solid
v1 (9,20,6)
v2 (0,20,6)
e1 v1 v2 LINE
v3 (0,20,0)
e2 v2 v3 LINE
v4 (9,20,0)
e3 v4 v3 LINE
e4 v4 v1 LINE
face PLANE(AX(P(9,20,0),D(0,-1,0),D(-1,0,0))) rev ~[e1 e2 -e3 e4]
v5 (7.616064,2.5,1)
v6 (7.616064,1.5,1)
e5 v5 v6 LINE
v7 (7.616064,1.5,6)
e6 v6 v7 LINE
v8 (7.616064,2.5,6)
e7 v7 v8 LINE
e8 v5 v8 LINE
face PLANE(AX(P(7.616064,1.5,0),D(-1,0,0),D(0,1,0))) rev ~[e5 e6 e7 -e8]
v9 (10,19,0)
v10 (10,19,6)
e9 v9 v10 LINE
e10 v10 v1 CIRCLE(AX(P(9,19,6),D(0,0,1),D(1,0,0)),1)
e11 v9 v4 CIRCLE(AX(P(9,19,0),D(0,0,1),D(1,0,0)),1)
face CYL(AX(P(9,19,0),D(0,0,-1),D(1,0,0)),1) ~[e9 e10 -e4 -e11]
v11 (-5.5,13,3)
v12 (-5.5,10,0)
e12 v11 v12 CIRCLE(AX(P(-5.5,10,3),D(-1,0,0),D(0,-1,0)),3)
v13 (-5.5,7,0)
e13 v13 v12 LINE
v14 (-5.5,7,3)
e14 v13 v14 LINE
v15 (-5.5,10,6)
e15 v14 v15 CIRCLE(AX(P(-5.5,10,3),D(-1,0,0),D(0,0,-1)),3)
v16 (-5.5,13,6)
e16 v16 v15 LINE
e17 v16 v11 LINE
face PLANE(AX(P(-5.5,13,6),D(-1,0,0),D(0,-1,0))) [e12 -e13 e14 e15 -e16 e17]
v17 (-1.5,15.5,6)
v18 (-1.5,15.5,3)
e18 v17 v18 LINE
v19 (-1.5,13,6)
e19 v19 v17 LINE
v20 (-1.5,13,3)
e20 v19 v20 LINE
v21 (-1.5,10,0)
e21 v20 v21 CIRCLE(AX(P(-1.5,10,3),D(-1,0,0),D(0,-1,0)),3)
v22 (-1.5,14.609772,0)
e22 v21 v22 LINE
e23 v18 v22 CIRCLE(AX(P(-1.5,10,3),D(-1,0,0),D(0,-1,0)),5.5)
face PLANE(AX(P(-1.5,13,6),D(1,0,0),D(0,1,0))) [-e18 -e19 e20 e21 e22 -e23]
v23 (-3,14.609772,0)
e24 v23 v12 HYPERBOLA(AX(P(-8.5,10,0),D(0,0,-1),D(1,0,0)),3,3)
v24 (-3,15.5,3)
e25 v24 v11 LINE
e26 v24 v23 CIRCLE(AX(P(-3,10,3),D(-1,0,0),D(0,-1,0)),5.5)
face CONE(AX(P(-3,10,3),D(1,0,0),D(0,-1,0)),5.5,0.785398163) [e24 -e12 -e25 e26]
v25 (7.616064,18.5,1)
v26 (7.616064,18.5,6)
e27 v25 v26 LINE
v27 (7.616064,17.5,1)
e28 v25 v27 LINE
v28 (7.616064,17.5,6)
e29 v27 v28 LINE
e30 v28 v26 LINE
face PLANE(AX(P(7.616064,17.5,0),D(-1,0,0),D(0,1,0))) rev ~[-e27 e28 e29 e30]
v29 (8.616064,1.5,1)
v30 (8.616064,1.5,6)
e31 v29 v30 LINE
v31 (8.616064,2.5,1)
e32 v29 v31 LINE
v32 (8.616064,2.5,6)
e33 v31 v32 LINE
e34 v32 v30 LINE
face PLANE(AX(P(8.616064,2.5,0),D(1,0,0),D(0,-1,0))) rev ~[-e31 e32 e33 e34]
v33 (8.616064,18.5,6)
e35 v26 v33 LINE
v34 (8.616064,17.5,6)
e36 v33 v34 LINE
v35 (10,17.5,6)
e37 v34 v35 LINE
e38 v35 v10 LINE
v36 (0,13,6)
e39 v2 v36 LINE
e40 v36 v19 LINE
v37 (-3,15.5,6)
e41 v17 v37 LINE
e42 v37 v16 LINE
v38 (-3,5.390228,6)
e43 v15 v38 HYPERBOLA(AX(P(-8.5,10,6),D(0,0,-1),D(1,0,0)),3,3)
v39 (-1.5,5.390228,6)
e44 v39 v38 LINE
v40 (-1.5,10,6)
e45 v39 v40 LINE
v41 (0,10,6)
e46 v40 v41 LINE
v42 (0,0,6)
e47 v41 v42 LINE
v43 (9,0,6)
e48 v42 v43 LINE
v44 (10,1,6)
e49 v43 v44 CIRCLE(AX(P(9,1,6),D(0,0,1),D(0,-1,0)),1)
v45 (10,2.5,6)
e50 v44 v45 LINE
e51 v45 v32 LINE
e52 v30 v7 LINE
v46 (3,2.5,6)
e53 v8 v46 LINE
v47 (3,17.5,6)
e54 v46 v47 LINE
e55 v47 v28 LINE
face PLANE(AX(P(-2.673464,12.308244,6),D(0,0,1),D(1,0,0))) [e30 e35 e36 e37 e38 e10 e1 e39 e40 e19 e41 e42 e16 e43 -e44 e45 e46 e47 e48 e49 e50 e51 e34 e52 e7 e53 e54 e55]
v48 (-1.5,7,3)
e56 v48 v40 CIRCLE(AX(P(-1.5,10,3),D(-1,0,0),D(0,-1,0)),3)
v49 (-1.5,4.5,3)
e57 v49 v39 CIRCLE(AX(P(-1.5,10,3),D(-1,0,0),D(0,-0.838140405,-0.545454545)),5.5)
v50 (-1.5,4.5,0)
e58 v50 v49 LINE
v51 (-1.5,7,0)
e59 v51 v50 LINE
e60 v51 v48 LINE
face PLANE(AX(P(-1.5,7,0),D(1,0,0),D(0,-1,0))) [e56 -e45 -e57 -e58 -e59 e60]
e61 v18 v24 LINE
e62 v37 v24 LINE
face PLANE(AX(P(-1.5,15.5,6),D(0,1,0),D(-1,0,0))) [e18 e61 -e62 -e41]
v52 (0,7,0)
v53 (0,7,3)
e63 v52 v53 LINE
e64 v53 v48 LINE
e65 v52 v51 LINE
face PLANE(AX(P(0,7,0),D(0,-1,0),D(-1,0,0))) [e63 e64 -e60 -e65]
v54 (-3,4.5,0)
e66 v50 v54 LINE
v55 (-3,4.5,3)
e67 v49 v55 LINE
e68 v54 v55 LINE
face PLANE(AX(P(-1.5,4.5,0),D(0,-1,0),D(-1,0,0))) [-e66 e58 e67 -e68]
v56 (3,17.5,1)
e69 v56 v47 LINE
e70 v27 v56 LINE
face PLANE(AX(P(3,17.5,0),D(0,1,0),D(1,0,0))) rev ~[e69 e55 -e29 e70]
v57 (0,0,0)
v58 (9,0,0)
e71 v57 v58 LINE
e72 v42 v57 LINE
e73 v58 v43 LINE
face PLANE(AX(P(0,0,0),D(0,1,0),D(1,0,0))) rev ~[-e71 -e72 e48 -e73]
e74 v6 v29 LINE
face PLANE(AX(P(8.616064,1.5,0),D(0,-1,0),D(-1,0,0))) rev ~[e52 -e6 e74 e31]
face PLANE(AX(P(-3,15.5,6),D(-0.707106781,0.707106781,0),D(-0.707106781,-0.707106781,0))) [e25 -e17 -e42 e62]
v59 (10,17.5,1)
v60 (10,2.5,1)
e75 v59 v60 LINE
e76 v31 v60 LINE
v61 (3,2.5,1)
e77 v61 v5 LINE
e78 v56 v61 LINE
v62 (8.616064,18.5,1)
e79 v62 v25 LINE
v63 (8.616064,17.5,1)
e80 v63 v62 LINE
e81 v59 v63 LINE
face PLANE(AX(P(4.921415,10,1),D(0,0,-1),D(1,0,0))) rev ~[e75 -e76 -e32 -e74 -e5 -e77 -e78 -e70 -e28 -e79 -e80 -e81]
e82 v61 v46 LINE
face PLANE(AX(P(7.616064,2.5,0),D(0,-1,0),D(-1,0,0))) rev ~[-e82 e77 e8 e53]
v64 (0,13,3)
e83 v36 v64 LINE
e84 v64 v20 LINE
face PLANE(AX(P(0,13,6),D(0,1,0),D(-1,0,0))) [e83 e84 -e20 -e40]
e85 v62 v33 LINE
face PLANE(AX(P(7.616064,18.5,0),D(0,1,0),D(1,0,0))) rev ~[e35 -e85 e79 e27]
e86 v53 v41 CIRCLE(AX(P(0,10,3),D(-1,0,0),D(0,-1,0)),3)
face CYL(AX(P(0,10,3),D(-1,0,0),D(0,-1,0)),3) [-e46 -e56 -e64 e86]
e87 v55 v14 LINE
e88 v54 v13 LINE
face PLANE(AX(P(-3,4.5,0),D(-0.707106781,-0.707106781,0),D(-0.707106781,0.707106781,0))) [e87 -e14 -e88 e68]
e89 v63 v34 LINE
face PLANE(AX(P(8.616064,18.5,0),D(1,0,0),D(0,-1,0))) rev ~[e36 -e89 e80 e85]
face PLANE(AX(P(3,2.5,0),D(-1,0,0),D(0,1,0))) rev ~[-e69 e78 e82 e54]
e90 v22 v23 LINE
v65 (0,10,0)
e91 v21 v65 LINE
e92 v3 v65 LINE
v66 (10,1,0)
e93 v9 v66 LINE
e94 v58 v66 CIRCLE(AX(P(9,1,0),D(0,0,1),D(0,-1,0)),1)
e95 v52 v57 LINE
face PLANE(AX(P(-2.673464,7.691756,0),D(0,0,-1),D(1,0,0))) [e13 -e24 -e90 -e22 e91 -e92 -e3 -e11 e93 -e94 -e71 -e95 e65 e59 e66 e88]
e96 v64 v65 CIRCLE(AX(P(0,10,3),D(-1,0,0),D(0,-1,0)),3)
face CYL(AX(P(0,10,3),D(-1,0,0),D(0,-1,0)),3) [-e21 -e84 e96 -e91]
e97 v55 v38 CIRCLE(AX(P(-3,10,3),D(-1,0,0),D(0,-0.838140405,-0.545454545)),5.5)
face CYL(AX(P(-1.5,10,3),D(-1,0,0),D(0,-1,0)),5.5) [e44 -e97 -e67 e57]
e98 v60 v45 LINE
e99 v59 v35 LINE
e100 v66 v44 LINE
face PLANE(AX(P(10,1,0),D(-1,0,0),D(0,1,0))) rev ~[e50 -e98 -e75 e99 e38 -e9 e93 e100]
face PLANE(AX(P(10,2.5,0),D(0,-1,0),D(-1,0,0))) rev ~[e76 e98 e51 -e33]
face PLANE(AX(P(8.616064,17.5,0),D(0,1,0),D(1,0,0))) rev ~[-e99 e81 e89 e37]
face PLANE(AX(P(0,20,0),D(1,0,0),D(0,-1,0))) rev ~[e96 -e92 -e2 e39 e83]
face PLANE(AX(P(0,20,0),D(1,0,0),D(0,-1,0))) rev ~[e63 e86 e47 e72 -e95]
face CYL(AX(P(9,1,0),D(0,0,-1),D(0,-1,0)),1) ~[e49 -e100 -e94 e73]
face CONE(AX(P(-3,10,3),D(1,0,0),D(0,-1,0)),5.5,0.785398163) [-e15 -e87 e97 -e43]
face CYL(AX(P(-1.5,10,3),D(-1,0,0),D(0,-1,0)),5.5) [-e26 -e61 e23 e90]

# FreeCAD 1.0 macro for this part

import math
import FreeCAD as App
import Part
import Sketcher
Q = App.Units.Quantity

doc = App.newDocument("Part")
body = doc.addObject("PartDesign::Body", "Body")

# Sketch on XY plane
sketch1 = body.newObject("Sketcher::SketchObject", "Sketch")
sketch1.AttachmentSupport = (doc.getObject("XY_Plane"), [""])
sketch1.MapMode = "FlatFace"
sketch1.addGeometry([
    Part.LineSegment(App.Vector(0, 0, 0), App.Vector(9, 0, 0)),  # 0
    Part.ArcOfCircle(Part.Circle(App.Vector(9, 1, 0), App.Vector(0, 0, 1), 1), math.radians(-90), math.radians(0)),  # 1
    Part.LineSegment(App.Vector(10, 1, 0), App.Vector(10, 2.5, 0)),  # 2
    Part.LineSegment(App.Vector(10, 2.5, 0), App.Vector(8.6, 2.5, 0)),  # 3
    Part.LineSegment(App.Vector(8.6, 2.5, 0), App.Vector(8.6, 1.5, 0)),  # 4
    Part.LineSegment(App.Vector(8.6, 1.5, 0), App.Vector(7.6, 1.5, 0)),  # 5
    Part.LineSegment(App.Vector(7.6, 1.5, 0), App.Vector(7.6, 2.5, 0)),  # 6
    Part.LineSegment(App.Vector(7.6, 2.5, 0), App.Vector(3, 2.5, 0)),  # 7
    Part.LineSegment(App.Vector(3, 2.5, 0), App.Vector(3, 17.5, 0)),  # 8
    Part.LineSegment(App.Vector(3, 17.5, 0), App.Vector(7.6, 17.5, 0)),  # 9
    Part.LineSegment(App.Vector(7.6, 17.5, 0), App.Vector(7.6, 18.5, 0)),  # 10
    Part.LineSegment(App.Vector(7.6, 18.5, 0), App.Vector(8.6, 18.5, 0)),  # 11
    Part.LineSegment(App.Vector(8.6, 18.5, 0), App.Vector(8.6, 17.5, 0)),  # 12
    Part.LineSegment(App.Vector(8.6, 17.5, 0), App.Vector(10, 17.5, 0)),  # 13
    Part.LineSegment(App.Vector(10, 17.5, 0), App.Vector(10, 19, 0)),  # 14
    Part.ArcOfCircle(Part.Circle(App.Vector(9, 19, 0), App.Vector(0, 0, 1), 1), math.radians(0), math.radians(90)),  # 15
    Part.LineSegment(App.Vector(9, 20, 0), App.Vector(0, 20, 0)),  # 16
    Part.LineSegment(App.Vector(0, 20, 0), App.Vector(0, 0, 0)),  # 17
], False)
sketch1.addConstraint([
    Sketcher.Constraint("Tangent", 0, 2, 1, 1),
    Sketcher.Constraint("Tangent", 1, 2, 2, 1),
    Sketcher.Constraint("Coincident", 2, 2, 3, 1),
    Sketcher.Constraint("Coincident", 3, 2, 4, 1),
    Sketcher.Constraint("Coincident", 4, 2, 5, 1),
    Sketcher.Constraint("Coincident", 5, 2, 6, 1),
    Sketcher.Constraint("Coincident", 6, 2, 7, 1),
    Sketcher.Constraint("Coincident", 7, 2, 8, 1),
    Sketcher.Constraint("Coincident", 8, 2, 9, 1),
    Sketcher.Constraint("Coincident", 9, 2, 10, 1),
    Sketcher.Constraint("Coincident", 10, 2, 11, 1),
    Sketcher.Constraint("Coincident", 11, 2, 12, 1),
    Sketcher.Constraint("Coincident", 12, 2, 13, 1),
    Sketcher.Constraint("Coincident", 13, 2, 14, 1),
    Sketcher.Constraint("Tangent", 14, 2, 15, 1),
    Sketcher.Constraint("Tangent", 15, 2, 16, 1),
    Sketcher.Constraint("Coincident", 16, 2, 17, 1),
    Sketcher.Constraint("Coincident", 17, 2, 0, 1),
    Sketcher.Constraint("Horizontal", 0),
    Sketcher.Constraint("Vertical", 2),
    Sketcher.Constraint("Horizontal", 3),
    Sketcher.Constraint("Vertical", 4),
    Sketcher.Constraint("Horizontal", 5),
    Sketcher.Constraint("Vertical", 6),
    Sketcher.Constraint("Horizontal", 7),
    Sketcher.Constraint("Vertical", 8),
    Sketcher.Constraint("Horizontal", 9),
    Sketcher.Constraint("Vertical", 10),
    Sketcher.Constraint("Horizontal", 11),
    Sketcher.Constraint("Vertical", 12),
    Sketcher.Constraint("Horizontal", 13),
    Sketcher.Constraint("Vertical", 14),
    Sketcher.Constraint("Horizontal", 16),
    Sketcher.Constraint("Vertical", 17),
    Sketcher.Constraint("Coincident", 17, 2, -1, 1),
    Sketcher.Constraint("Equal", 1, 15),
    Sketcher.Constraint("Horizontal", 3, 2, 6, 2),
    Sketcher.Constraint("Horizontal", 9, 2, 12, 2),
    Sketcher.Constraint("Vertical", 1, 3, 15, 3),
    Sketcher.Constraint("Vertical", 6, 2, 9, 2),
    Sketcher.Constraint("Vertical", 4, 2, 11, 2),
    Sketcher.Constraint("Equal", 11, 4),
    Sketcher.Constraint("Equal", 6, 10),
    Sketcher.Constraint("Equal", 2, 14),
    Sketcher.Constraint("Radius", 1, Q("1 mm")),
    Sketcher.Constraint("DistanceX", 0, 1, 0, 2, Q("9 mm")),
    Sketcher.Constraint("DistanceX", 5, 2, 5, 1, Q("1 mm")),
    Sketcher.Constraint("DistanceY", 8, 1, 8, 2, Q("15 mm")),
    Sketcher.Constraint("DistanceY", 17, 2, 17, 1, Q("20 mm")),
    Sketcher.Constraint("DistanceX", -1, 1, 7, 2, Q("3 mm")),
    Sketcher.Constraint("DistanceX", 3, 2, 3, 1, Q("1.383936 mm")),
])
pad1 = body.newObject("PartDesign::Pad", "Pad")
pad1.Profile = sketch1
pad1.Length = 6

# Sketch on XY plane
sketch2 = body.newObject("Sketcher::SketchObject", "Sketch001")
sketch2.AttachmentSupport = (doc.getObject("XY_Plane"), [""])
sketch2.MapMode = "FlatFace"
sketch2.addGeometry([
    Part.LineSegment(App.Vector(10, 19, 0), App.Vector(10, 1, 0)),  # 0
    Part.ArcOfCircle(Part.Circle(App.Vector(9, 1, 0), App.Vector(0, 0, 1), 1), math.radians(-90), math.radians(0)),  # 1
    Part.LineSegment(App.Vector(9, 0, 0), App.Vector(0, 0, 0)),  # 2
    Part.LineSegment(App.Vector(0, 0, 0), App.Vector(0, 20, 0)),  # 3
    Part.LineSegment(App.Vector(0, 20, 0), App.Vector(9, 20, 0)),  # 4
    Part.ArcOfCircle(Part.Circle(App.Vector(9, 19, 0), App.Vector(0, 0, 1), 1), math.radians(0), math.radians(90)),  # 5
], False)
sketch2.addConstraint([
    Sketcher.Constraint("Tangent", 0, 2, 1, 2),
    Sketcher.Constraint("Tangent", 1, 1, 2, 1),
    Sketcher.Constraint("Coincident", 2, 2, 3, 1),
    Sketcher.Constraint("Coincident", 3, 2, 4, 1),
    Sketcher.Constraint("Tangent", 4, 2, 5, 2),
    Sketcher.Constraint("Tangent", 5, 1, 0, 1),
    Sketcher.Constraint("Vertical", 0),
    Sketcher.Constraint("Horizontal", 2),
    Sketcher.Constraint("Vertical", 3),
    Sketcher.Constraint("Horizontal", 4),
    Sketcher.Constraint("Coincident", 2, 2, -1, 1),
    Sketcher.Constraint("Equal", 1, 5),
    Sketcher.Constraint("Radius", 1, Q("1 mm")),
    Sketcher.Constraint("DistanceX", 2, 2, 2, 1, Q("9 mm")),
    Sketcher.Constraint("DistanceY", 0, 2, 0, 1, Q("18 mm")),
])
pad2 = body.newObject("PartDesign::Pad", "Pad001")
pad2.Profile = sketch2
pad2.Length = 1

# Sketch on XY plane
sketch3 = body.newObject("Sketcher::SketchObject", "Sketch002")
sketch3.AttachmentSupport = (doc.getObject("XY_Plane"), [""])
sketch3.MapMode = "FlatFace"
sketch3.AttachmentOffset = App.Placement(App.Vector(0, 0, 3), App.Rotation())
sketch3.addGeometry([
    Part.LineSegment(App.Vector(-5.5, 7, 0), App.Vector(-5.5, 10, 0)),  # 0
    Part.LineSegment(App.Vector(-5.5, 10, 0), App.Vector(0, 10, 0)),  # 1
    Part.LineSegment(App.Vector(0, 10, 0), App.Vector(0, 7, 0)),  # 2
    Part.LineSegment(App.Vector(0, 7, 0), App.Vector(-1.5, 7, 0)),  # 3
    Part.LineSegment(App.Vector(-1.5, 7, 0), App.Vector(-1.5, 4.5, 0)),  # 4
    Part.LineSegment(App.Vector(-1.5, 4.5, 0), App.Vector(-3, 4.5, 0)),  # 5
    Part.LineSegment(App.Vector(-3, 4.5, 0), App.Vector(-5.5, 7, 0)),  # 6
], False)
sketch3.addGeometry(Part.LineSegment(App.Vector(0, 10, 0), App.Vector(-5.5, 10, 0)), True)  # axis
sketch3.addConstraint([
    Sketcher.Constraint("Coincident", 0, 2, 1, 1),
    Sketcher.Constraint("Coincident", 1, 2, 2, 1),
    Sketcher.Constraint("Coincident", 2, 2, 3, 1),
    Sketcher.Constraint("Coincident", 3, 2, 4, 1),
    Sketcher.Constraint("Coincident", 4, 2, 5, 1),
    Sketcher.Constraint("Coincident", 5, 2, 6, 1),
    Sketcher.Constraint("Coincident", 6, 2, 0, 1),
    Sketcher.Constraint("Vertical", 0),
    Sketcher.Constraint("Horizontal", 1),
    Sketcher.Constraint("Vertical", 2),
    Sketcher.Constraint("Horizontal", 3),
    Sketcher.Constraint("Vertical", 4),
    Sketcher.Constraint("Horizontal", 5),
    Sketcher.Constraint("Horizontal", 7),
    Sketcher.Constraint("Coincident", 7, 1, 1, 2),
    Sketcher.Constraint("PointOnObject", 1, 2, -2),
    Sketcher.Constraint("Horizontal", 3, 2, 6, 2),
    Sketcher.Constraint("Vertical", 6, 2, 7, 2),
    Sketcher.Constraint("Equal", 3, 5),
    Sketcher.Constraint("DistanceY", 0, 1, 0, 2, Q("3 mm")),
    Sketcher.Constraint("Angle", 6, Q("135 deg")),
    Sketcher.Constraint("DistanceX", 1, 1, 1, 2, Q("5.5 mm")),
    Sketcher.Constraint("DistanceX", 3, 2, 3, 1, Q("1.5 mm")),
    Sketcher.Constraint("DistanceY", -1, 1, 0, 2, Q("10 mm")),
])
revolution = body.newObject("PartDesign::Revolution", "Revolution")
revolution.Profile = sketch3
revolution.ReferenceAxis = (sketch3, ["Axis0"])
revolution.Angle = 360

# Sketch on YZ plane
sketch4 = body.newObject("Sketcher::SketchObject", "Sketch003")
sketch4.AttachmentSupport = (doc.getObject("YZ_Plane"), [""])
sketch4.MapMode = "FlatFace"
sketch4.AttachmentOffset = App.Placement(App.Vector(0, 0, -5.5), App.Rotation())
sketch4.addGeometry([
    Part.LineSegment(App.Vector(26.3, 0, 0), App.Vector(26.3, -2.8, 0)),  # 0
    Part.LineSegment(App.Vector(26.3, -2.8, 0), App.Vector(-15.8, -2.8, 0)),  # 1
    Part.LineSegment(App.Vector(-15.8, -2.8, 0), App.Vector(-15.8, 0, 0)),  # 2
    Part.LineSegment(App.Vector(-15.8, 0, 0), App.Vector(26.3, 0, 0)),  # 3
    Part.LineSegment(App.Vector(27.2, 8.6, 0), App.Vector(27.2, 6, 0)),  # 4
    Part.LineSegment(App.Vector(27.2, 6, 0), App.Vector(-16.1, 6, 0)),  # 5
    Part.LineSegment(App.Vector(-16.1, 6, 0), App.Vector(-16.1, 8.6, 0)),  # 6
    Part.LineSegment(App.Vector(-16.1, 8.6, 0), App.Vector(27.2, 8.6, 0)),  # 7
], False)
sketch4.addConstraint([
    Sketcher.Constraint("Coincident", 0, 2, 1, 1),
    Sketcher.Constraint("Coincident", 1, 2, 2, 1),
    Sketcher.Constraint("Coincident", 2, 2, 3, 1),
    Sketcher.Constraint("Coincident", 3, 2, 0, 1),
    Sketcher.Constraint("Coincident", 4, 2, 5, 1),
    Sketcher.Constraint("Coincident", 5, 2, 6, 1),
    Sketcher.Constraint("Coincident", 6, 2, 7, 1),
    Sketcher.Constraint("Coincident", 7, 2, 4, 1),
    Sketcher.Constraint("Vertical", 0),
    Sketcher.Constraint("Horizontal", 1),
    Sketcher.Constraint("Vertical", 2),
    Sketcher.Constraint("Horizontal", 3),
    Sketcher.Constraint("Vertical", 4),
    Sketcher.Constraint("Horizontal", 5),
    Sketcher.Constraint("Vertical", 6),
    Sketcher.Constraint("Horizontal", 7),
    Sketcher.Constraint("PointOnObject", 2, 2, -1),
    Sketcher.Constraint("DistanceY", -1, 1, 4, 2, Q("6 mm")),
    Sketcher.Constraint("DistanceY", 0, 2, 0, 1, Q("2.768628 mm")),
    Sketcher.Constraint("DistanceX", 1, 2, 1, 1, Q("42.110018 mm")),
    Sketcher.Constraint("DistanceX", 5, 2, 5, 1, Q("43.292364 mm")),
    Sketcher.Constraint("DistanceY", 4, 2, 4, 1, Q("2.604198 mm")),
    Sketcher.Constraint("DistanceX", -1, 1, 4, 2, Q("27.211761 mm")),
    Sketcher.Constraint("DistanceX", 5, 2, 2, 2, Q("0.26042 mm")),
])
pocket1 = body.newObject("PartDesign::Pocket", "Pocket")
pocket1.Profile = sketch4
pocket1.Length = 25
pocket1.Reversed = True

# Sketch on XY plane
sketch5 = body.newObject("Sketcher::SketchObject", "Sketch004")
sketch5.AttachmentSupport = (doc.getObject("XY_Plane"), [""])
sketch5.MapMode = "FlatFace"
sketch5.addGeometry([
    Part.LineSegment(App.Vector(-5.5, 7, 0), App.Vector(-5.5, 10, 0)),  # 0
    Part.LineSegment(App.Vector(-5.5, 10, 0), App.Vector(0, 10, 0)),  # 1
    Part.LineSegment(App.Vector(0, 10, 0), App.Vector(0, 7, 0)),  # 2
    Part.LineSegment(App.Vector(0, 7, 0), App.Vector(-1.5, 7, 0)),  # 3
    Part.LineSegment(App.Vector(-1.5, 7, 0), App.Vector(-1.5, 4.5, 0)),  # 4
    Part.LineSegment(App.Vector(-1.5, 4.5, 0), App.Vector(-3, 4.5, 0)),  # 5
    Part.LineSegment(App.Vector(-3, 4.5, 0), App.Vector(-5.5, 7, 0)),  # 6
], False)
sketch5.addConstraint([
    Sketcher.Constraint("Coincident", 0, 2, 1, 1),
    Sketcher.Constraint("Coincident", 1, 2, 2, 1),
    Sketcher.Constraint("Coincident", 2, 2, 3, 1),
    Sketcher.Constraint("Coincident", 3, 2, 4, 1),
    Sketcher.Constraint("Coincident", 4, 2, 5, 1),
    Sketcher.Constraint("Coincident", 5, 2, 6, 1),
    Sketcher.Constraint("Coincident", 6, 2, 0, 1),
    Sketcher.Constraint("Vertical", 0),
    Sketcher.Constraint("Horizontal", 1),
    Sketcher.Constraint("Vertical", 2),
    Sketcher.Constraint("Horizontal", 3),
    Sketcher.Constraint("Vertical", 4),
    Sketcher.Constraint("Horizontal", 5),
    Sketcher.Constraint("PointOnObject", 1, 2, -2),
    Sketcher.Constraint("Horizontal", 3, 2, 6, 2),
    Sketcher.Constraint("Equal", 3, 5),
    Sketcher.Constraint("DistanceY", 0, 1, 0, 2, Q("3 mm")),
    Sketcher.Constraint("Angle", 6, Q("135 deg")),
    Sketcher.Constraint("DistanceX", 1, 1, 1, 2, Q("5.5 mm")),
    Sketcher.Constraint("DistanceX", 3, 2, 3, 1, Q("1.5 mm")),
    Sketcher.Constraint("DistanceY", -1, 1, 0, 2, Q("10 mm")),
])
pad3 = body.newObject("PartDesign::Pad", "Pad002")
pad3.Profile = sketch5
pad3.Length = 3

# Sketch on XY plane
sketch6 = body.newObject("Sketcher::SketchObject", "Sketch005")
sketch6.AttachmentSupport = (doc.getObject("XY_Plane"), [""])
sketch6.MapMode = "FlatFace"
sketch6.AttachmentOffset = App.Placement(App.Vector(0, 0, 6), App.Rotation())
sketch6.addGeometry([
    Part.LineSegment(App.Vector(-5.5, 13, 0), App.Vector(-5.5, 10, 0)),  # 0
    Part.LineSegment(App.Vector(-5.5, 10, 0), App.Vector(0, 10, 0)),  # 1
    Part.LineSegment(App.Vector(0, 10, 0), App.Vector(0, 13, 0)),  # 2
    Part.LineSegment(App.Vector(0, 13, 0), App.Vector(-1.5, 13, 0)),  # 3
    Part.LineSegment(App.Vector(-1.5, 13, 0), App.Vector(-1.5, 15.5, 0)),  # 4
    Part.LineSegment(App.Vector(-1.5, 15.5, 0), App.Vector(-3, 15.5, 0)),  # 5
    Part.LineSegment(App.Vector(-3, 15.5, 0), App.Vector(-5.5, 13, 0)),  # 6
], False)
sketch6.addConstraint([
    Sketcher.Constraint("Coincident", 0, 2, 1, 1),
    Sketcher.Constraint("Coincident", 1, 2, 2, 1),
    Sketcher.Constraint("Coincident", 2, 2, 3, 1),
    Sketcher.Constraint("Coincident", 3, 2, 4, 1),
    Sketcher.Constraint("Coincident", 4, 2, 5, 1),
    Sketcher.Constraint("Coincident", 5, 2, 6, 1),
    Sketcher.Constraint("Coincident", 6, 2, 0, 1),
    Sketcher.Constraint("Vertical", 0),
    Sketcher.Constraint("Horizontal", 1),
    Sketcher.Constraint("Vertical", 2),
    Sketcher.Constraint("Horizontal", 3),
    Sketcher.Constraint("Vertical", 4),
    Sketcher.Constraint("Horizontal", 5),
    Sketcher.Constraint("PointOnObject", 1, 2, -2),
    Sketcher.Constraint("Horizontal", 3, 2, 6, 2),
    Sketcher.Constraint("Equal", 3, 5),
    Sketcher.Constraint("DistanceY", 0, 2, 0, 1, Q("3 mm")),
    Sketcher.Constraint("Angle", 6, Q("-135 deg")),
    Sketcher.Constraint("DistanceX", 1, 1, 1, 2, Q("5.5 mm")),
    Sketcher.Constraint("DistanceX", 3, 2, 3, 1, Q("1.5 mm")),
    Sketcher.Constraint("DistanceY", -1, 1, 0, 2, Q("10 mm")),
])
pad4 = body.newObject("PartDesign::Pad", "Pad003")
pad4.Profile = sketch6
pad4.Length = 3
pad4.Reversed = True

doc.recompute()
